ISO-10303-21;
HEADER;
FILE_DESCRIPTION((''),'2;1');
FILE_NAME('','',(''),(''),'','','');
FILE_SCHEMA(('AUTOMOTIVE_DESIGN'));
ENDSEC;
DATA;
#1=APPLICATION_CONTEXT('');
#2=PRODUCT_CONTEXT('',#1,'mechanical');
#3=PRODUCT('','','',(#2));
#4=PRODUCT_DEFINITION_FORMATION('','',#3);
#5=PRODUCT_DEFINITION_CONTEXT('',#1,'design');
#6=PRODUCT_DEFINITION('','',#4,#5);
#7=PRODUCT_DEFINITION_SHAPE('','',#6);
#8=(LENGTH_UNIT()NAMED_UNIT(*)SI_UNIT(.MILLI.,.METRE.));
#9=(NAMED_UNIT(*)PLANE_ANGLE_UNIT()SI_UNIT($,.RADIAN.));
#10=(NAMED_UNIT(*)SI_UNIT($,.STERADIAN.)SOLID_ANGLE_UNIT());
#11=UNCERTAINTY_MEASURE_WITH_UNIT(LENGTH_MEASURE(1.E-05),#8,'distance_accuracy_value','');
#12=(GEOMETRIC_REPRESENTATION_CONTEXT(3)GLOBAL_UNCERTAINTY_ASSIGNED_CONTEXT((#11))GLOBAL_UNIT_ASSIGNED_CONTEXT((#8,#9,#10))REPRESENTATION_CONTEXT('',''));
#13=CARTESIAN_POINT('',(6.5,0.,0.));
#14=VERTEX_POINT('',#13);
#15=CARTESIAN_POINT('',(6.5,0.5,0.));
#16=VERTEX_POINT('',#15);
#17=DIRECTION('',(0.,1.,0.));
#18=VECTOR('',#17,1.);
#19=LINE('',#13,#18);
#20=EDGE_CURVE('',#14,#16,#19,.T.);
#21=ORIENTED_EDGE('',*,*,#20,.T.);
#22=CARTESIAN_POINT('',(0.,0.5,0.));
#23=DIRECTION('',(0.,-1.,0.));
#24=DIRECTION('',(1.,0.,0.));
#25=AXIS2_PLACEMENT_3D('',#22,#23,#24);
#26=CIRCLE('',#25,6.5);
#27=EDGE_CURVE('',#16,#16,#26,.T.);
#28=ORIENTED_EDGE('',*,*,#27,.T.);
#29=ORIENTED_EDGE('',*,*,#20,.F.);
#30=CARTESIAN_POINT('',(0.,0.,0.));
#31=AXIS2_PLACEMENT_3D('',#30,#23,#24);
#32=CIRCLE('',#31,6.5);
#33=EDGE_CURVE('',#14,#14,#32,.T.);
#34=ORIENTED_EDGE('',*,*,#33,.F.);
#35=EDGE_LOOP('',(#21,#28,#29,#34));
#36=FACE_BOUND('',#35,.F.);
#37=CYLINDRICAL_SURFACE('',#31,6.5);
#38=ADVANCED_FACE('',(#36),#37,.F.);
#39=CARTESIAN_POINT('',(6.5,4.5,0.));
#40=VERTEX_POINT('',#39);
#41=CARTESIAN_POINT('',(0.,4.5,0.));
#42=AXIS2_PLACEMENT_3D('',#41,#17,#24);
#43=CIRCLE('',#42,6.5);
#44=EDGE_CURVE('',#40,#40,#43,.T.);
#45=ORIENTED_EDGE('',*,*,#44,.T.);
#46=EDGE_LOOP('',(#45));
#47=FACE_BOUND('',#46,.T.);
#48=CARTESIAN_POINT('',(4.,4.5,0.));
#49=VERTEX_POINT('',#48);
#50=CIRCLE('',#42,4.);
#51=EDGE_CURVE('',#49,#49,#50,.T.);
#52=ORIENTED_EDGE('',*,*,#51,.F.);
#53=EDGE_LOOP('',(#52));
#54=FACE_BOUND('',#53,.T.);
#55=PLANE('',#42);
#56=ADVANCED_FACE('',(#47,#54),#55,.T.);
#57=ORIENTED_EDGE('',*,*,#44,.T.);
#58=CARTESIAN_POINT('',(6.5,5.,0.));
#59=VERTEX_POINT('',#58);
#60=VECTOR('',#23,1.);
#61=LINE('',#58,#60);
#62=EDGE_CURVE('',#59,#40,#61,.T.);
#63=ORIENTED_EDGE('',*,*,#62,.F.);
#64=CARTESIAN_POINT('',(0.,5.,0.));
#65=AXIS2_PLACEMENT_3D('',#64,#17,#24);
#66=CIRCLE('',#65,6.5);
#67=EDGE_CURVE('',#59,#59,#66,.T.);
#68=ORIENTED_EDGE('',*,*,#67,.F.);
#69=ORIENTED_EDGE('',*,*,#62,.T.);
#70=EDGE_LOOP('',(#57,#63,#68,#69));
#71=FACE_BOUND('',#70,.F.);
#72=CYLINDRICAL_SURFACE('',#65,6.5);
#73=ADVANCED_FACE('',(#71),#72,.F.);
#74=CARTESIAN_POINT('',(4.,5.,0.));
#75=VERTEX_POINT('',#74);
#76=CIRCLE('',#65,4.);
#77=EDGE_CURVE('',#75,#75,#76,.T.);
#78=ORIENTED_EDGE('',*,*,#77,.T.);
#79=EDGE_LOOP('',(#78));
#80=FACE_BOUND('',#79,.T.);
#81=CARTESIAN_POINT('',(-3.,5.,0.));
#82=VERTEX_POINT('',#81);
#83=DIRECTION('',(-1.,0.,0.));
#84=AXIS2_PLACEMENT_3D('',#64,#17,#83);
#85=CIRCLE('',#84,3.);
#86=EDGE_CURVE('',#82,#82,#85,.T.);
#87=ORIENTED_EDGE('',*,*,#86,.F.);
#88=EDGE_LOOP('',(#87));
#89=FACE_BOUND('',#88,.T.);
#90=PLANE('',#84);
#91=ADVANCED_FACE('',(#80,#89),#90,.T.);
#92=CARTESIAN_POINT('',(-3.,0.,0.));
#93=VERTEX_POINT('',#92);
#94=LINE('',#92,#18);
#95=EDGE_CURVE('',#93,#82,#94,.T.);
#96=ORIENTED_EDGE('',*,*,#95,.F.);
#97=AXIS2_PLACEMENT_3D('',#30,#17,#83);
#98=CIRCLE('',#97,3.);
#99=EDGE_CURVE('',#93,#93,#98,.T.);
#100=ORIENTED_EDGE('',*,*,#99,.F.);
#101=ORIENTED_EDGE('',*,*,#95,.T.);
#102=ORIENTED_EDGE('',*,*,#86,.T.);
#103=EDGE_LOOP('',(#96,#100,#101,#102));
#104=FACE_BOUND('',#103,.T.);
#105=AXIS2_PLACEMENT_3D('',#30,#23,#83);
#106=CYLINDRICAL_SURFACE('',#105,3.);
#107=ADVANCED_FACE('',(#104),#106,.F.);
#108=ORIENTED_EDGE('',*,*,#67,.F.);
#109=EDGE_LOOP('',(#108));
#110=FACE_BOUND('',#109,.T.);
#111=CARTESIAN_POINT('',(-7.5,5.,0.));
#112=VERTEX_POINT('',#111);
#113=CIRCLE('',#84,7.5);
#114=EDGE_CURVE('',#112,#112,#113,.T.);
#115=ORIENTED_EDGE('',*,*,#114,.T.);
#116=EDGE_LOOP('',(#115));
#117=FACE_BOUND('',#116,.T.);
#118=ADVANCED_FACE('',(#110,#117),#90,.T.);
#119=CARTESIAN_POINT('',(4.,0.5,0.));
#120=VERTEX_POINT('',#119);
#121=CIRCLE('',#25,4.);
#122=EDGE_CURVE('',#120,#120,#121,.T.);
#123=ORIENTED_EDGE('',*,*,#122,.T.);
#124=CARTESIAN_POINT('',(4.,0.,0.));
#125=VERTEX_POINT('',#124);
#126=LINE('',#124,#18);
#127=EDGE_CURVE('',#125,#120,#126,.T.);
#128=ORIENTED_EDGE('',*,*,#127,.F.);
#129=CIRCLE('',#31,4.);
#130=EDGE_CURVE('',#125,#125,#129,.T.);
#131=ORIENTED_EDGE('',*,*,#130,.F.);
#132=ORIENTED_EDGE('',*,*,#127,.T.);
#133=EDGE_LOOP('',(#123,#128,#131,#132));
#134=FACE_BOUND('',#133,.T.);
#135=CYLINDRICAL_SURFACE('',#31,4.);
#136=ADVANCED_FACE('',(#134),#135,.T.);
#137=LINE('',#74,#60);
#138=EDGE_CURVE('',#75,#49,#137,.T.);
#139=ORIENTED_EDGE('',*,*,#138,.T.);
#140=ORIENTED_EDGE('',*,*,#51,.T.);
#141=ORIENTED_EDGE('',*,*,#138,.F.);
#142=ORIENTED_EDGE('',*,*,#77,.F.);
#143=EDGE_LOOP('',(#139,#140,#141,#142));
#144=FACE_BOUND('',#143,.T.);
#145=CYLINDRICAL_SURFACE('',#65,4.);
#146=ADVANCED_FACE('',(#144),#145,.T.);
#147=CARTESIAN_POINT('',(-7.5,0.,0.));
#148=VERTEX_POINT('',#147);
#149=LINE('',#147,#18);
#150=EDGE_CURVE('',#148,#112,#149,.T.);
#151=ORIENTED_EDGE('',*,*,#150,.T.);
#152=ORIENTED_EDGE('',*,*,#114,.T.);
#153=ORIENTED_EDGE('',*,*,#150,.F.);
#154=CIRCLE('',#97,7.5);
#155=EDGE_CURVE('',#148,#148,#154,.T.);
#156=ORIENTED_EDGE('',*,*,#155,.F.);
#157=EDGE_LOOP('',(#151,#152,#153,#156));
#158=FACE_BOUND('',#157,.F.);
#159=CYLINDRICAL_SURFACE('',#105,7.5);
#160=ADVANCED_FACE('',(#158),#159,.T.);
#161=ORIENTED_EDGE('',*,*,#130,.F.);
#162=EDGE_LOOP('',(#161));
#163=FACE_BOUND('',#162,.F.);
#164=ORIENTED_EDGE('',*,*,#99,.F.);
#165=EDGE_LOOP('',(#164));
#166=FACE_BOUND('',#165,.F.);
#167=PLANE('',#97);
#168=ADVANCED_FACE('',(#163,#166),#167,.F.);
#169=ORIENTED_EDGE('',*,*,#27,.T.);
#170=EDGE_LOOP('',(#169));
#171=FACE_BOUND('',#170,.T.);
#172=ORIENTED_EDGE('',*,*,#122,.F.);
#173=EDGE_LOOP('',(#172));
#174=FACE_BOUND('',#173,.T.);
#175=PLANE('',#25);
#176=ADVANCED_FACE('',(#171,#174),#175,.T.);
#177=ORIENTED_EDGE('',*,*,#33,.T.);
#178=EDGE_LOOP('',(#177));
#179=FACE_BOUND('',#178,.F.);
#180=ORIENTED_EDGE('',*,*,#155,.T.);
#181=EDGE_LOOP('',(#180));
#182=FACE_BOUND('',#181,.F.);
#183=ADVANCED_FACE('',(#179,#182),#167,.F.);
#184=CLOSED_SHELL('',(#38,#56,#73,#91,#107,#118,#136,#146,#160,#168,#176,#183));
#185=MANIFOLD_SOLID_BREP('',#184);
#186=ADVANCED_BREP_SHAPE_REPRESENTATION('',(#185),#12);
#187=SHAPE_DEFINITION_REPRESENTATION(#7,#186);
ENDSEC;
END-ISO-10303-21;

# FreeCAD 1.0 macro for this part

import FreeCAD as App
import Part
import Sketcher
Q = App.Units.Quantity

doc = App.newDocument("Part")
body = doc.addObject("PartDesign::Body", "Body")

# Sketch on XZ plane
sketch1 = body.newObject("Sketcher::SketchObject", "Sketch")
sketch1.AttachmentSupport = (doc.getObject("XZ_Plane"), [""])
sketch1.MapMode = "FlatFace"
sketch1.addGeometry([
    Part.Circle(App.Vector(0, 0, 0), App.Vector(0, 0, 1), 7.5),
    Part.Circle(App.Vector(0, 0, 0), App.Vector(0, 0, 1), 3),
], False)
sketch1.addConstraint([
    Sketcher.Constraint("Coincident", 0, 3, -1, 1),
    Sketcher.Constraint("Coincident", 1, 3, -1, 1),
    Sketcher.Constraint("Diameter", 0, Q("15 mm")),
    Sketcher.Constraint("Diameter", 1, Q("6 mm")),
])
pad1 = body.newObject("PartDesign::Pad", "Pad")
pad1.Profile = sketch1
pad1.Length = 5
pad1.Reversed = True

# Sketch on XZ plane
sketch2 = body.newObject("Sketcher::SketchObject", "Sketch001")
sketch2.AttachmentSupport = (doc.getObject("XZ_Plane"), [""])
sketch2.MapMode = "FlatFace"
sketch2.AttachmentOffset = App.Placement(App.Vector(0, 0, -5), App.Rotation())
sketch2.addGeometry([
    Part.Circle(App.Vector(0, 0, 0), App.Vector(0, 0, 1), 6.5),
    Part.Circle(App.Vector(0, 0, 0), App.Vector(0, 0, 1), 4),
], False)
sketch2.addConstraint([
    Sketcher.Constraint("Coincident", 0, 3, -1, 1),
    Sketcher.Constraint("Coincident", 1, 3, -1, 1),
    Sketcher.Constraint("Diameter", 0, Q("13 mm")),
    Sketcher.Constraint("Diameter", 1, Q("8 mm")),
])
pocket1 = body.newObject("PartDesign::Pocket", "Pocket")
pocket1.Profile = sketch2
pocket1.Length = 0.5
pocket1.Reversed = True

# Sketch on XZ plane
sketch3 = body.newObject("Sketcher::SketchObject", "Sketch002")
sketch3.AttachmentSupport = (doc.getObject("XZ_Plane"), [""])
sketch3.MapMode = "FlatFace"
sketch3.addGeometry([
    Part.Circle(App.Vector(0, 0, 0), App.Vector(0, 0, 1), 6.5),
    Part.Circle(App.Vector(0, 0, 0), App.Vector(0, 0, 1), 4),
], False)
sketch3.addConstraint([
    Sketcher.Constraint("Coincident", 0, 3, -1, 1),
    Sketcher.Constraint("Coincident", 1, 3, -1, 1),
    Sketcher.Constraint("Diameter", 0, Q("13 mm")),
    Sketcher.Constraint("Diameter", 1, Q("8 mm")),
])
pocket2 = body.newObject("PartDesign::Pocket", "Pocket001")
pocket2.Profile = sketch3
pocket2.Length = 0.5

doc.recompute()
